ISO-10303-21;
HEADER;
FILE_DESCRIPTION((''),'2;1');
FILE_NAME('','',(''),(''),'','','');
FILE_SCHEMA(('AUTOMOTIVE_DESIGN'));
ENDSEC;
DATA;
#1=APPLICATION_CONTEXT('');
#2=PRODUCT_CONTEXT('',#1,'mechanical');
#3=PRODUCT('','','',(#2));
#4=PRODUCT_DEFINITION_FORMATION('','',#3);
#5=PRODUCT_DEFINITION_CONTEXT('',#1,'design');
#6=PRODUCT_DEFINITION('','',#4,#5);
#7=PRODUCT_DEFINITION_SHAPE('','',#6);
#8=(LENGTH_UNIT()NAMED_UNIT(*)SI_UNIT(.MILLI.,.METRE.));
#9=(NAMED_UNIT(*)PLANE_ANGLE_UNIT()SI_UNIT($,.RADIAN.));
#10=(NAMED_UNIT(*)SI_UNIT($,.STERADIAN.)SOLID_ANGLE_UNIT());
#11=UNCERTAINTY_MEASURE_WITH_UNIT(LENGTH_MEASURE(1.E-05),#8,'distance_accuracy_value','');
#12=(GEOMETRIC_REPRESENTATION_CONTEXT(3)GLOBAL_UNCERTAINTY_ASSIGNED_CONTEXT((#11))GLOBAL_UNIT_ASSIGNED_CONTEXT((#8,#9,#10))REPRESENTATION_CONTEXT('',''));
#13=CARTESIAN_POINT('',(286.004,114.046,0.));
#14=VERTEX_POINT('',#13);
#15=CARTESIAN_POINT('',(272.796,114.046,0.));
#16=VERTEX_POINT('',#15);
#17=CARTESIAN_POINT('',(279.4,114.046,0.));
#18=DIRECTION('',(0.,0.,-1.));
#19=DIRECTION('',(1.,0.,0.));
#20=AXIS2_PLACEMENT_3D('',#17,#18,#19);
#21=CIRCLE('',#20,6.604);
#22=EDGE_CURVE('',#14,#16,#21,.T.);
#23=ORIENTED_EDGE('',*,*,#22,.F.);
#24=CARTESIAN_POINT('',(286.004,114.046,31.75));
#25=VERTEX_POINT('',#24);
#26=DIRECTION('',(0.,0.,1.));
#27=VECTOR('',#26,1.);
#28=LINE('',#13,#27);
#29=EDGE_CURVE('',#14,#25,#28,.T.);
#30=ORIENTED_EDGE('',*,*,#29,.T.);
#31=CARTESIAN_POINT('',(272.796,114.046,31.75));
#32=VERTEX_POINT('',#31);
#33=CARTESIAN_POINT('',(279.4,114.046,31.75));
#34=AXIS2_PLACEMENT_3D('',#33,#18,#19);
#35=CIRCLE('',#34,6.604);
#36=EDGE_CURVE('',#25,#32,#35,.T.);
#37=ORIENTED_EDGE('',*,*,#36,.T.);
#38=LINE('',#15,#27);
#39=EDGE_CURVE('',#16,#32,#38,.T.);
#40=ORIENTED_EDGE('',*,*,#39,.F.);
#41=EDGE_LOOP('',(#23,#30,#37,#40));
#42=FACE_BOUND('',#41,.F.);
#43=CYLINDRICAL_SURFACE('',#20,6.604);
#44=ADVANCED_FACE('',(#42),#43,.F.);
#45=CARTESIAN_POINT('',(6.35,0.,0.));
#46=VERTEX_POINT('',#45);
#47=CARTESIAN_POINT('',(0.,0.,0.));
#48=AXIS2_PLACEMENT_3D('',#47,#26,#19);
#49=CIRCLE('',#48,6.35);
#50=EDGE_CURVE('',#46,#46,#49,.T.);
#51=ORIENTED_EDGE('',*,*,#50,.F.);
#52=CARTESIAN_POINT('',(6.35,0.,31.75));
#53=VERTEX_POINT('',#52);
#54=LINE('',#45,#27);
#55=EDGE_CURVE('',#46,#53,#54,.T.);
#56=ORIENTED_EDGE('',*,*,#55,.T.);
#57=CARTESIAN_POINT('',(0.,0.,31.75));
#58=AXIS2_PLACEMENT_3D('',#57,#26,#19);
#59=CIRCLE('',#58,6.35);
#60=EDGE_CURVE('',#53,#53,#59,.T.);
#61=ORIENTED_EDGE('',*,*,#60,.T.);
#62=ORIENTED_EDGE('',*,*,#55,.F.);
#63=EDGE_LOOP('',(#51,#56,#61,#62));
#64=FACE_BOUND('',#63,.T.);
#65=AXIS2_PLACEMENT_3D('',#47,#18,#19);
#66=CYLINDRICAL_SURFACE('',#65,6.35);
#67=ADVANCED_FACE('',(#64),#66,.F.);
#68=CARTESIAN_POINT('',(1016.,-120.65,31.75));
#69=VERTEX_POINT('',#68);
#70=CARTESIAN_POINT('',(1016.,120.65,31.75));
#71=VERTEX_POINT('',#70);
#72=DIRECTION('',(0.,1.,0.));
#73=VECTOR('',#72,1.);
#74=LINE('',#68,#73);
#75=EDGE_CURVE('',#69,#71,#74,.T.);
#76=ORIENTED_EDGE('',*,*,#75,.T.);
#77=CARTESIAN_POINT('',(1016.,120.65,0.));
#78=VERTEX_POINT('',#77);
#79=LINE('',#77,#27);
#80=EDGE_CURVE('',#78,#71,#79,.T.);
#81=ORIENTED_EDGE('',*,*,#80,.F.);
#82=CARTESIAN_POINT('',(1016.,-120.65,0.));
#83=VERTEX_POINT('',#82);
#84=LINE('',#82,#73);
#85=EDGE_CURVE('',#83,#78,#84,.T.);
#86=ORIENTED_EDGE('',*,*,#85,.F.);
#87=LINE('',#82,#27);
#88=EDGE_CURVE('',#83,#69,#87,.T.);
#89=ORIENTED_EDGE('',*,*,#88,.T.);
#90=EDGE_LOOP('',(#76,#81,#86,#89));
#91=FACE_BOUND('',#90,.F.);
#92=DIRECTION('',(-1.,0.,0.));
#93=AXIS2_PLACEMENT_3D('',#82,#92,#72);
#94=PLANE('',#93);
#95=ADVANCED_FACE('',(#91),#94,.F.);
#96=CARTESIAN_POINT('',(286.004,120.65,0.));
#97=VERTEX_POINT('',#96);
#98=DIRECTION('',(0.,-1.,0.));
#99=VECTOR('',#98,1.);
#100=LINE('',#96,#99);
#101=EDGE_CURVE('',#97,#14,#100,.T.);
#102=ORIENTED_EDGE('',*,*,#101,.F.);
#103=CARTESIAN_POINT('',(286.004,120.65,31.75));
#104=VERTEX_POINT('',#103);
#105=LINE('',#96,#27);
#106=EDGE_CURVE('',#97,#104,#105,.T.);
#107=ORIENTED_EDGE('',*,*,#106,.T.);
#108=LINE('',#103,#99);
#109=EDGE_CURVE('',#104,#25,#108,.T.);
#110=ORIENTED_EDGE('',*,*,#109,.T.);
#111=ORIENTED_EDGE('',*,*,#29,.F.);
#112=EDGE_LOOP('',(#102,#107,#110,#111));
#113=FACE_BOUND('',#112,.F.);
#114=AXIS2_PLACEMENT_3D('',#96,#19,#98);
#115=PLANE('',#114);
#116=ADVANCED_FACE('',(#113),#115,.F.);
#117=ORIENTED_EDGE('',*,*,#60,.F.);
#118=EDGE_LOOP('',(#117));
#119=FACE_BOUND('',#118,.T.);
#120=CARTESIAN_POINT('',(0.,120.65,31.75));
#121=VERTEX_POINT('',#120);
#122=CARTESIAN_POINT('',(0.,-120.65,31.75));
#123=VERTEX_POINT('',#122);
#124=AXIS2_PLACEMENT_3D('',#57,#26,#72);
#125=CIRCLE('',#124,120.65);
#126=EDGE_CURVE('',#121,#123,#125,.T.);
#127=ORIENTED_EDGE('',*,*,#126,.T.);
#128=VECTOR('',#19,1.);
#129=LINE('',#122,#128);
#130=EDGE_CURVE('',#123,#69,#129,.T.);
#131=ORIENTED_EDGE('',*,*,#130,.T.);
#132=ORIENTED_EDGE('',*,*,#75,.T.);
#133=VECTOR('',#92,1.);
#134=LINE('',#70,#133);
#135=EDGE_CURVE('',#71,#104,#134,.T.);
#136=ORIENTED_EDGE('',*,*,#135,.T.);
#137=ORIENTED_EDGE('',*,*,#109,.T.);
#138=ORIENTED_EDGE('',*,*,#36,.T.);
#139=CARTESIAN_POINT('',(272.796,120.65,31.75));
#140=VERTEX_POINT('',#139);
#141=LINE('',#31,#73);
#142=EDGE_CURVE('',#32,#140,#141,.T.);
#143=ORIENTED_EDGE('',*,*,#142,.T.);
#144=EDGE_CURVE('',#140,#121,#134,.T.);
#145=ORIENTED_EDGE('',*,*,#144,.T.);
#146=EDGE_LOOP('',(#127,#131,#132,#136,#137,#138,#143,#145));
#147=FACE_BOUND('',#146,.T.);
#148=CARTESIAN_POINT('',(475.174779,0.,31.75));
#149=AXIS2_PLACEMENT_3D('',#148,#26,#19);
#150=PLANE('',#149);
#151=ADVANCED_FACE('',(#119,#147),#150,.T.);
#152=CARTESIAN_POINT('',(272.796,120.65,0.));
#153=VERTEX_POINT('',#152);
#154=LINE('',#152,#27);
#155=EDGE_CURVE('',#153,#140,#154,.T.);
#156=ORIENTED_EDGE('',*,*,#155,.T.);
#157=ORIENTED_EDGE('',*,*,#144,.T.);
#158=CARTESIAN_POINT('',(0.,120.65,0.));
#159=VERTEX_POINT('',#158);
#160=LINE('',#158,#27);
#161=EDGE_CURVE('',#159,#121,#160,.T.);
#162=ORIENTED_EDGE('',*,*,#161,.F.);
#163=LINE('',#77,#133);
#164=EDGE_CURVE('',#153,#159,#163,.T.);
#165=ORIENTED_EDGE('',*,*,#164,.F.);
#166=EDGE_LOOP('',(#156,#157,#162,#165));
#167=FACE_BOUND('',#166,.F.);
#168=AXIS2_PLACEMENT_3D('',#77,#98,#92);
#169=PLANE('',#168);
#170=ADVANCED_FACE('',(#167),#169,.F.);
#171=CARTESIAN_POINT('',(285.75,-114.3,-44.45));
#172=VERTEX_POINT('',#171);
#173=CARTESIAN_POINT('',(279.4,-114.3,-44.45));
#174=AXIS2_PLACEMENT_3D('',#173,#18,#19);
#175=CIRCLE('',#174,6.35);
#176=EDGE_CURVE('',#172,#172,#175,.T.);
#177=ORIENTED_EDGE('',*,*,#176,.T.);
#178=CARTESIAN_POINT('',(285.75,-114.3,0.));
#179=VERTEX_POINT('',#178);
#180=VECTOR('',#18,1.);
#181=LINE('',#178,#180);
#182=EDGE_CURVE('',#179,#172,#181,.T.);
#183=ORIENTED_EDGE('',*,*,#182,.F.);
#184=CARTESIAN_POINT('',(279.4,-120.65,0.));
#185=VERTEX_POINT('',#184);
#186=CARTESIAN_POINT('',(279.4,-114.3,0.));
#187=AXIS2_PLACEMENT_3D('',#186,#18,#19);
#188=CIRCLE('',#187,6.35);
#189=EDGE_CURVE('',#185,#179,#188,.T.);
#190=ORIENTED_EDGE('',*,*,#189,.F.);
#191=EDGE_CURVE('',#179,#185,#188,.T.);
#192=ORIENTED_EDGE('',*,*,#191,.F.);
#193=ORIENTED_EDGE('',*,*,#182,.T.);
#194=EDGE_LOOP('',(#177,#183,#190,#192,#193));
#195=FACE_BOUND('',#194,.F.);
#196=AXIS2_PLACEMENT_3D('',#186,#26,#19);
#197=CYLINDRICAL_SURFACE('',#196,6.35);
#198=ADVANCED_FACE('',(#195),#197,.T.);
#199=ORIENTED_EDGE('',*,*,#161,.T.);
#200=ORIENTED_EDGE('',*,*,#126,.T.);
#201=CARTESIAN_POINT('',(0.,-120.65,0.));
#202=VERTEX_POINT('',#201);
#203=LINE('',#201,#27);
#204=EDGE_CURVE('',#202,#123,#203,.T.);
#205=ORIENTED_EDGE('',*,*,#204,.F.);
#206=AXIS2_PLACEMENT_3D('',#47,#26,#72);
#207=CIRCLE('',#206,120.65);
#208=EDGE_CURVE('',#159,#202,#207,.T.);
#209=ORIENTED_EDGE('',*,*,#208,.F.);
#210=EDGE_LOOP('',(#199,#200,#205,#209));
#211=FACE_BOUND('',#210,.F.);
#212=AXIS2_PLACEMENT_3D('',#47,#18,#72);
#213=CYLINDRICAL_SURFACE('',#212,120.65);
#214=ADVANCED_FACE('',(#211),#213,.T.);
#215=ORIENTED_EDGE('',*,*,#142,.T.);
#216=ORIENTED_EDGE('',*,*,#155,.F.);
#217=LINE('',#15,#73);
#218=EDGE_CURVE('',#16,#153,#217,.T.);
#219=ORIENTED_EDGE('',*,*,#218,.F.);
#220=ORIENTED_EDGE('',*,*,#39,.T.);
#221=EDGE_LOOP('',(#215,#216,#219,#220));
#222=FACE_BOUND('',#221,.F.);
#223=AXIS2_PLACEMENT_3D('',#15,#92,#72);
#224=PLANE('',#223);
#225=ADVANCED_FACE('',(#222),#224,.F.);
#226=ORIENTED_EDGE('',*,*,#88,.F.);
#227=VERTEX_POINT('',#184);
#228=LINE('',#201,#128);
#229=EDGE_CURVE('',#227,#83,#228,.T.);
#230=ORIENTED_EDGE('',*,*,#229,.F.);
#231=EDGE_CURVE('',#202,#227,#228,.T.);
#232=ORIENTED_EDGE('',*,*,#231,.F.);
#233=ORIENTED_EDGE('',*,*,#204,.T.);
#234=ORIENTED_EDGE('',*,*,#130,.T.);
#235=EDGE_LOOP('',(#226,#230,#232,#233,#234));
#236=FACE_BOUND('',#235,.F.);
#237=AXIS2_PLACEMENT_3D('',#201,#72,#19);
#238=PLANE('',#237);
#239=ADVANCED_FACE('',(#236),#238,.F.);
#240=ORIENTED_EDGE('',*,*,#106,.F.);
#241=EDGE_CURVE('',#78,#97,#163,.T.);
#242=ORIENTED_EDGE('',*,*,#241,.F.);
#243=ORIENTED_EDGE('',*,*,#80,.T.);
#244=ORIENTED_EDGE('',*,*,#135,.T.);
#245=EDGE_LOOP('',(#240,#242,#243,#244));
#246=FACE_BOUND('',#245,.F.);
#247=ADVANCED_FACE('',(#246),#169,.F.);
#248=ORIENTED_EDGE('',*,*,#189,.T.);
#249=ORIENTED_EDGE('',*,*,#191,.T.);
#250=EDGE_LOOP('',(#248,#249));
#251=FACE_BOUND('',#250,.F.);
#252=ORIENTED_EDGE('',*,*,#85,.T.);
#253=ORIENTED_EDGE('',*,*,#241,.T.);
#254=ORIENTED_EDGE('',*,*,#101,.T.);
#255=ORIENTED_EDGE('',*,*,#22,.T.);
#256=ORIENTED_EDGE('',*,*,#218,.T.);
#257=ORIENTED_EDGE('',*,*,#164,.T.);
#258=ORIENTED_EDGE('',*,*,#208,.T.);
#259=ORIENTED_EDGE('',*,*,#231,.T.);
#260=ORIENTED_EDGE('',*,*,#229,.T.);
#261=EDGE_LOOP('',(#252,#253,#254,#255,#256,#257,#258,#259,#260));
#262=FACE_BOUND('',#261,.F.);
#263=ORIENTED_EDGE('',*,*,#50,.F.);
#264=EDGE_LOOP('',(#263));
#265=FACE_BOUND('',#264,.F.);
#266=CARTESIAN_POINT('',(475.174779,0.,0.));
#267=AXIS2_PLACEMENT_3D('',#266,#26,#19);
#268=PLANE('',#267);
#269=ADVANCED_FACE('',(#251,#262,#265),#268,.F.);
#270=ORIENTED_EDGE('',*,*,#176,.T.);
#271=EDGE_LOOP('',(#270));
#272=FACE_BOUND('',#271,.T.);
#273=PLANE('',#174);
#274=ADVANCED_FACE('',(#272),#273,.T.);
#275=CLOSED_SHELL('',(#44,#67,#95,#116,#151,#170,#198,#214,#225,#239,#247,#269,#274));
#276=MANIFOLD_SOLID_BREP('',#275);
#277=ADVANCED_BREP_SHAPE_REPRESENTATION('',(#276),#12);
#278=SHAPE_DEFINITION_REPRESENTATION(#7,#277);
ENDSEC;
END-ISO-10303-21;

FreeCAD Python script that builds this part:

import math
import FreeCAD as App
import Part
import Sketcher
Q = App.Units.Quantity

doc = App.newDocument("Part")
body = doc.addObject("PartDesign::Body", "Body")

sketch1 = body.newObject("Sketcher::SketchObject", "Sketch")
sketch1.AttachmentSupport = (doc.getObject("XY_Plane"), [""])
sketch1.MapMode = "FlatFace"
sketch1.addGeometry(Part.LineSegment(App.Vector(1016, 121, 0), App.Vector(0, 121, 0)), False)
sketch1.addGeometry(Part.ArcOfCircle(Part.Circle(App.Vector(0, 0, 0), App.Vector(0, 0, 1), 121), math.radians(90), math.radians(270)), False)
sketch1.addGeometry(Part.LineSegment(App.Vector(0, -121, 0), App.Vector(1016, -121, 0)), False)
sketch1.addGeometry(Part.LineSegment(App.Vector(1016, -121, 0), App.Vector(1016, 121, 0)), False)
sketch1.addGeometry(Part.Circle(App.Vector(0, 0, 0), App.Vector(0, 0, 1), 6), False)
sketch1.addConstraint(Sketcher.Constraint("Tangent", 0, 2, 1, 1))
sketch1.addConstraint(Sketcher.Constraint("Tangent", 1, 2, 2, 1))
sketch1.addConstraint(Sketcher.Constraint("Coincident", 2, 2, 3, 1))
sketch1.addConstraint(Sketcher.Constraint("Coincident", 3, 2, 0, 1))
sketch1.addConstraint(Sketcher.Constraint("Horizontal", 0))
sketch1.addConstraint(Sketcher.Constraint("Horizontal", 2))
sketch1.addConstraint(Sketcher.Constraint("Vertical", 3))
sketch1.addConstraint(Sketcher.Constraint("Coincident", 1, 3, -1, 1))
sketch1.addConstraint(Sketcher.Constraint("Coincident", 4, 3, -1, 1))
sketch1.addConstraint(Sketcher.Constraint("Diameter", 4, Q("0.5 in")))
sketch1.addConstraint(Sketcher.Constraint("DistanceX", 0, 2, 0, 1, Q("40 in")))
sketch1.addConstraint(Sketcher.Constraint("Radius", 1, Q("4.75 in")))
pad1 = body.newObject("PartDesign::Pad", "Pad")
pad1.Profile = sketch1
pad1.Length = Q("1.25 in")

sketch2 = body.newObject("Sketcher::SketchObject", "Sketch001")
sketch2.AttachmentSupport = (doc.getObject("XY_Plane"), [""])
sketch2.MapMode = "FlatFace"
sketch2.addGeometry(Part.Circle(App.Vector(279, -114, 0), App.Vector(0, 0, 1), 6), False)
sketch2.addConstraint(Sketcher.Constraint("Diameter", 0, Q("0.5 in")))
sketch2.addConstraint(Sketcher.Constraint("DistanceX", -1, 1, 0, 3, Q("11 in")))
sketch2.addConstraint(Sketcher.Constraint("DistanceY", 0, 3, -1, 1, Q("4.5 in")))
pad2 = body.newObject("PartDesign::Pad", "Pad001")
pad2.Profile = sketch2
pad2.Length = Q("1.75 in")
pad2.Reversed = True

sketch3 = body.newObject("Sketcher::SketchObject", "Sketch002")
sketch3.AttachmentSupport = (doc.getObject("XY_Plane"), [""])
sketch3.MapMode = "FlatFace"
sketch3.addGeometry(Part.LineSegment(App.Vector(286, 121, 0), App.Vector(286, 114, 0)), False)
sketch3.addGeometry(Part.ArcOfCircle(Part.Circle(App.Vector(279, 114, 0), App.Vector(0, 0, 1), 7), math.radians(180), math.radians(360)), False)
sketch3.addGeometry(Part.LineSegment(App.Vector(273, 114, 0), App.Vector(273, 121, 0)), False)
sketch3.addGeometry(Part.LineSegment(App.Vector(273, 121, 0), App.Vector(286, 121, 0)), False)
sketch3.addConstraint(Sketcher.Constraint("Tangent", 0, 2, 1, 2))
sketch3.addConstraint(Sketcher.Constraint("Tangent", 1, 1, 2, 1))
sketch3.addConstraint(Sketcher.Constraint("Coincident", 2, 2, 3, 1))
sketch3.addConstraint(Sketcher.Constraint("Coincident", 3, 2, 0, 1))
sketch3.addConstraint(Sketcher.Constraint("Vertical", 0))
sketch3.addConstraint(Sketcher.Constraint("Vertical", 2))
sketch3.addConstraint(Sketcher.Constraint("Horizontal", 3))
sketch3.addConstraint(Sketcher.Constraint("Radius", 1, Q("0.26 in")))
sketch3.addConstraint(Sketcher.Constraint("DistanceX", -1, 1, 1, 3, Q("11 in")))
sketch3.addConstraint(Sketcher.Constraint("DistanceY", 0, 2, 0, 1, Q("0.26 in")))
sketch3.addConstraint(Sketcher.Constraint("DistanceY", -1, 1, 1, 3, Q("4.49 in")))
pocket1 = body.newObject("PartDesign::Pocket", "Pocket")
pocket1.Profile = sketch3
pocket1.Length = Q("1.25 in")
pocket1.Reversed = True

doc.recompute()
